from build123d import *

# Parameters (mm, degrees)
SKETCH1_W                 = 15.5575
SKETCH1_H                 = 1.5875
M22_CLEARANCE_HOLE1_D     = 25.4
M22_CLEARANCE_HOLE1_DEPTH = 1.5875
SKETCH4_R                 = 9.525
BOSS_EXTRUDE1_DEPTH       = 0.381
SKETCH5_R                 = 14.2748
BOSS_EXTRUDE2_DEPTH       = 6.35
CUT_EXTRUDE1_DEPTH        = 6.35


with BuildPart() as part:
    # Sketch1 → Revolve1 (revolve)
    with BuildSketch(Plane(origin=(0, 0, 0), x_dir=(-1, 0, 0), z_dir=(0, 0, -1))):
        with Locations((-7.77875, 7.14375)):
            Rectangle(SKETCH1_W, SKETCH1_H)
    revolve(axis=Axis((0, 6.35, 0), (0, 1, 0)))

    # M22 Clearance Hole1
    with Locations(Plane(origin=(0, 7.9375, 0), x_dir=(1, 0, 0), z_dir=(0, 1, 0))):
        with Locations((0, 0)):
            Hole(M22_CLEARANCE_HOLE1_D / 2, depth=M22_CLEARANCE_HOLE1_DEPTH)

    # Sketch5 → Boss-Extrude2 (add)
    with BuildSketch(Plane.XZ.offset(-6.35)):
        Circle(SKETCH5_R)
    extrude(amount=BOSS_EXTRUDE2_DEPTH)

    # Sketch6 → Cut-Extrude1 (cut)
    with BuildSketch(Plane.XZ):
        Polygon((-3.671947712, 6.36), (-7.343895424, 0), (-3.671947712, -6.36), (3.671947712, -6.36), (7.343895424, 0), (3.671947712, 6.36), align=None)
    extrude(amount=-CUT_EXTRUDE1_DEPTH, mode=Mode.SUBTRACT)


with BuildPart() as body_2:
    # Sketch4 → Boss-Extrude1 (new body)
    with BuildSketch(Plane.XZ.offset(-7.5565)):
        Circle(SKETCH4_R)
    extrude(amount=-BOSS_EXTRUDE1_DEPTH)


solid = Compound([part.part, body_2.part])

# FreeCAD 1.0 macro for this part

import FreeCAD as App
import Part
import Sketcher
Q = App.Units.Quantity

doc = App.newDocument("Part")
params = doc.addObject("Spreadsheet::Sheet", "Params")
for row, (alias, value) in enumerate([
    ("sketch1_height", "0.0625 in"),
    ("revolution_angle", "360 deg"),
    ("sketch2_diameter", "1 in"),
    ("hole_diameter", "1 in"),
    ("hole_depth", "0.0625 in"),
    ("sketch3_diameter", "1.124 in"),
    ("pad1_length", "0.25 in"),
    ("pocket1_length", "0.25 in"),
    ("sketch5_diameter", "0.75 in"),
    ("pad2_length", "0.015 in"),
], start=1):
    params.set(f"A{row}", alias)
    params.set(f"B{row}", "=" + value)
    params.setAlias(f"B{row}", alias)

body = doc.addObject("PartDesign::Body", "Body")

# Sketch on XY plane
sketch1 = body.newObject("Sketcher::SketchObject", "Sketch")
sketch1.AttachmentSupport = (doc.getObject("XY_Plane"), [""])
sketch1.MapMode = "FlatFace"
sketch1.addGeometry(Part.LineSegment(App.Vector(15.6, 7.9, 0), App.Vector(15.6, 6.3, 0)), False)
sketch1.addGeometry(Part.LineSegment(App.Vector(15.6, 6.3, 0), App.Vector(0, 6.3, 0)), False)
sketch1.addGeometry(Part.LineSegment(App.Vector(0, 6.3, 0), App.Vector(0, 7.9, 0)), False)
sketch1.addGeometry(Part.LineSegment(App.Vector(0, 7.9, 0), App.Vector(15.6, 7.9, 0)), False)
sketch1.addConstraint(Sketcher.Constraint("Coincident", 0, 2, 1, 1))
sketch1.addConstraint(Sketcher.Constraint("Coincident", 1, 2, 2, 1))
sketch1.addConstraint(Sketcher.Constraint("Coincident", 2, 2, 3, 1))
sketch1.addConstraint(Sketcher.Constraint("Coincident", 3, 2, 0, 1))
sketch1.addConstraint(Sketcher.Constraint("Vertical", 0))
sketch1.addConstraint(Sketcher.Constraint("Horizontal", 1))
sketch1.addConstraint(Sketcher.Constraint("Vertical", 2))
sketch1.addConstraint(Sketcher.Constraint("Horizontal", 3))
sketch1.addConstraint(Sketcher.Constraint("PointOnObject", 1, 2, -2))
sketch1.addConstraint(Sketcher.Constraint("DistanceY", 0, 2, 0, 1, Q("0.0625 in")))
sketch1.addConstraint(Sketcher.Constraint("DistanceY", -1, 1, 0, 2, Q("0.25 in")))
sketch1.addConstraint(Sketcher.Constraint("DistanceX", 1, 2, 1, 1, Q("0.6125 in")))
sketch1.setExpression("Constraints[9]", "Params.sketch1_height")
revolution = body.newObject("PartDesign::Revolution", "Revolution")
revolution.Profile = sketch1
revolution.ReferenceAxis = (sketch1, ["V_Axis"])
revolution.setExpression("Angle", "Params.revolution_angle")

# Sketch on XZ plane
sketch2 = body.newObject("Sketcher::SketchObject", "Sketch001")
sketch2.AttachmentSupport = (doc.getObject("XZ_Plane"), [""])
sketch2.MapMode = "FlatFace"
sketch2.AttachmentOffset = App.Placement(App.Vector(0, 0, -0.3125 * 25.4), App.Rotation())
sketch2.addGeometry(Part.Circle(App.Vector(0, 0, 0), App.Vector(0, 0, 1), 13), False)
sketch2.addConstraint(Sketcher.Constraint("Coincident", 0, 3, -1, 1))
sketch2.addConstraint(Sketcher.Constraint("Diameter", 0, Q("1 in")))
sketch2.setExpression("Constraints[1]", "Params.sketch2_diameter")
doc.recompute()
hole = body.newObject("PartDesign::Hole", "Hole")
hole.Profile = sketch2
hole.ThreadType = "None"
hole.setExpression("Diameter", "Params.hole_diameter")
hole.DepthType = "Dimension"
hole.setExpression("Depth", "Params.hole_depth")
hole.DrillPoint = "Flat"
hole.Reversed = True

# Sketch on XZ plane
sketch3 = body.newObject("Sketcher::SketchObject", "Sketch002")
sketch3.AttachmentSupport = (doc.getObject("XZ_Plane"), [""])
sketch3.MapMode = "FlatFace"
sketch3.AttachmentOffset = App.Placement(App.Vector(0, 0, -0.25 * 25.4), App.Rotation())
sketch3.addGeometry(Part.Circle(App.Vector(0, 0, 0), App.Vector(0, 0, 1), 14), False)
sketch3.addConstraint(Sketcher.Constraint("Coincident", 0, 3, -1, 1))
sketch3.addConstraint(Sketcher.Constraint("Diameter", 0, Q("1.124 in")))
sketch3.setExpression("Constraints[1]", "Params.sketch3_diameter")
pad1 = body.newObject("PartDesign::Pad", "Pad")
pad1.Profile = sketch3
pad1.setExpression("Length", "Params.pad1_length")

# Sketch on XZ plane
sketch4 = body.newObject("Sketcher::SketchObject", "Sketch003")
sketch4.AttachmentSupport = (doc.getObject("XZ_Plane"), [""])
sketch4.MapMode = "FlatFace"
sketch4.addGeometry(Part.LineSegment(App.Vector(-4, 6, 0), App.Vector(-7, 0, 0)), False)
sketch4.addGeometry(Part.LineSegment(App.Vector(-7, 0, 0), App.Vector(-4, -6, 0)), False)
sketch4.addGeometry(Part.LineSegment(App.Vector(-4, -6, 0), App.Vector(4, -6, 0)), False)
sketch4.addGeometry(Part.LineSegment(App.Vector(4, -6, 0), App.Vector(7, 0, 0)), False)
sketch4.addGeometry(Part.LineSegment(App.Vector(7, 0, 0), App.Vector(4, 6, 0)), False)
sketch4.addGeometry(Part.LineSegment(App.Vector(4, 6, 0), App.Vector(-4, 6, 0)), False)
sketch4.addConstraint(Sketcher.Constraint("Coincident", 0, 2, 1, 1))
sketch4.addConstraint(Sketcher.Constraint("Coincident", 1, 2, 2, 1))
sketch4.addConstraint(Sketcher.Constraint("Coincident", 2, 2, 3, 1))
sketch4.addConstraint(Sketcher.Constraint("Coincident", 3, 2, 4, 1))
sketch4.addConstraint(Sketcher.Constraint("Coincident", 4, 2, 5, 1))
sketch4.addConstraint(Sketcher.Constraint("Coincident", 5, 2, 0, 1))
sketch4.addConstraint(Sketcher.Constraint("Horizontal", 2))
sketch4.addConstraint(Sketcher.Constraint("Horizontal", 5))
sketch4.addConstraint(Sketcher.Constraint("Symmetric", 0, 2, 3, 2, -1, 1))
sketch4.addConstraint(Sketcher.Constraint("Symmetric", 1, 2, 4, 2, -1, 1))
sketch4.addConstraint(Sketcher.Constraint("PointOnObject", 0, 2, -1))
sketch4.addConstraint(Sketcher.Constraint("Parallel", 0, 3))
sketch4.addConstraint(Sketcher.Constraint("Vertical", 2, 2, 4, 2))
sketch4.addConstraint(Sketcher.Constraint("Angle", 0, Q("-120 deg")))
sketch4.addConstraint(Sketcher.Constraint("DistanceY", 1, 2, -1, 1, Q("6.36 mm")))
sketch4.addConstraint(Sketcher.Constraint("DistanceX", 2, 1, 2, 2, Q("7.343895 mm")))
pocket1 = body.newObject("PartDesign::Pocket", "Pocket")
pocket1.Profile = sketch4
pocket1.setExpression("Length", "Params.pocket1_length")
body2 = doc.addObject("PartDesign::Body", "Body001")

# Sketch on XZ plane
sketch5 = body2.newObject("Sketcher::SketchObject", "Sketch004")
sketch5.AttachmentSupport = (doc.getObject("XZ_Plane001"), [""])
sketch5.MapMode = "FlatFace"
sketch5.AttachmentOffset = App.Placement(App.Vector(0, 0, -0.2975 * 25.4), App.Rotation())
sketch5.addGeometry(Part.Circle(App.Vector(0, 0, 0), App.Vector(0, 0, 1), 10), False)
sketch5.addConstraint(Sketcher.Constraint("Coincident", 0, 3, -1, 1))
sketch5.addConstraint(Sketcher.Constraint("Diameter", 0, Q("0.75 in")))
sketch5.setExpression("Constraints[1]", "Params.sketch5_diameter")
pad2 = body2.newObject("PartDesign::Pad", "Pad001")
pad2.Profile = sketch5
pad2.setExpression("Length", "Params.pad2_length")
pad2.Reversed = True

doc.recompute()
